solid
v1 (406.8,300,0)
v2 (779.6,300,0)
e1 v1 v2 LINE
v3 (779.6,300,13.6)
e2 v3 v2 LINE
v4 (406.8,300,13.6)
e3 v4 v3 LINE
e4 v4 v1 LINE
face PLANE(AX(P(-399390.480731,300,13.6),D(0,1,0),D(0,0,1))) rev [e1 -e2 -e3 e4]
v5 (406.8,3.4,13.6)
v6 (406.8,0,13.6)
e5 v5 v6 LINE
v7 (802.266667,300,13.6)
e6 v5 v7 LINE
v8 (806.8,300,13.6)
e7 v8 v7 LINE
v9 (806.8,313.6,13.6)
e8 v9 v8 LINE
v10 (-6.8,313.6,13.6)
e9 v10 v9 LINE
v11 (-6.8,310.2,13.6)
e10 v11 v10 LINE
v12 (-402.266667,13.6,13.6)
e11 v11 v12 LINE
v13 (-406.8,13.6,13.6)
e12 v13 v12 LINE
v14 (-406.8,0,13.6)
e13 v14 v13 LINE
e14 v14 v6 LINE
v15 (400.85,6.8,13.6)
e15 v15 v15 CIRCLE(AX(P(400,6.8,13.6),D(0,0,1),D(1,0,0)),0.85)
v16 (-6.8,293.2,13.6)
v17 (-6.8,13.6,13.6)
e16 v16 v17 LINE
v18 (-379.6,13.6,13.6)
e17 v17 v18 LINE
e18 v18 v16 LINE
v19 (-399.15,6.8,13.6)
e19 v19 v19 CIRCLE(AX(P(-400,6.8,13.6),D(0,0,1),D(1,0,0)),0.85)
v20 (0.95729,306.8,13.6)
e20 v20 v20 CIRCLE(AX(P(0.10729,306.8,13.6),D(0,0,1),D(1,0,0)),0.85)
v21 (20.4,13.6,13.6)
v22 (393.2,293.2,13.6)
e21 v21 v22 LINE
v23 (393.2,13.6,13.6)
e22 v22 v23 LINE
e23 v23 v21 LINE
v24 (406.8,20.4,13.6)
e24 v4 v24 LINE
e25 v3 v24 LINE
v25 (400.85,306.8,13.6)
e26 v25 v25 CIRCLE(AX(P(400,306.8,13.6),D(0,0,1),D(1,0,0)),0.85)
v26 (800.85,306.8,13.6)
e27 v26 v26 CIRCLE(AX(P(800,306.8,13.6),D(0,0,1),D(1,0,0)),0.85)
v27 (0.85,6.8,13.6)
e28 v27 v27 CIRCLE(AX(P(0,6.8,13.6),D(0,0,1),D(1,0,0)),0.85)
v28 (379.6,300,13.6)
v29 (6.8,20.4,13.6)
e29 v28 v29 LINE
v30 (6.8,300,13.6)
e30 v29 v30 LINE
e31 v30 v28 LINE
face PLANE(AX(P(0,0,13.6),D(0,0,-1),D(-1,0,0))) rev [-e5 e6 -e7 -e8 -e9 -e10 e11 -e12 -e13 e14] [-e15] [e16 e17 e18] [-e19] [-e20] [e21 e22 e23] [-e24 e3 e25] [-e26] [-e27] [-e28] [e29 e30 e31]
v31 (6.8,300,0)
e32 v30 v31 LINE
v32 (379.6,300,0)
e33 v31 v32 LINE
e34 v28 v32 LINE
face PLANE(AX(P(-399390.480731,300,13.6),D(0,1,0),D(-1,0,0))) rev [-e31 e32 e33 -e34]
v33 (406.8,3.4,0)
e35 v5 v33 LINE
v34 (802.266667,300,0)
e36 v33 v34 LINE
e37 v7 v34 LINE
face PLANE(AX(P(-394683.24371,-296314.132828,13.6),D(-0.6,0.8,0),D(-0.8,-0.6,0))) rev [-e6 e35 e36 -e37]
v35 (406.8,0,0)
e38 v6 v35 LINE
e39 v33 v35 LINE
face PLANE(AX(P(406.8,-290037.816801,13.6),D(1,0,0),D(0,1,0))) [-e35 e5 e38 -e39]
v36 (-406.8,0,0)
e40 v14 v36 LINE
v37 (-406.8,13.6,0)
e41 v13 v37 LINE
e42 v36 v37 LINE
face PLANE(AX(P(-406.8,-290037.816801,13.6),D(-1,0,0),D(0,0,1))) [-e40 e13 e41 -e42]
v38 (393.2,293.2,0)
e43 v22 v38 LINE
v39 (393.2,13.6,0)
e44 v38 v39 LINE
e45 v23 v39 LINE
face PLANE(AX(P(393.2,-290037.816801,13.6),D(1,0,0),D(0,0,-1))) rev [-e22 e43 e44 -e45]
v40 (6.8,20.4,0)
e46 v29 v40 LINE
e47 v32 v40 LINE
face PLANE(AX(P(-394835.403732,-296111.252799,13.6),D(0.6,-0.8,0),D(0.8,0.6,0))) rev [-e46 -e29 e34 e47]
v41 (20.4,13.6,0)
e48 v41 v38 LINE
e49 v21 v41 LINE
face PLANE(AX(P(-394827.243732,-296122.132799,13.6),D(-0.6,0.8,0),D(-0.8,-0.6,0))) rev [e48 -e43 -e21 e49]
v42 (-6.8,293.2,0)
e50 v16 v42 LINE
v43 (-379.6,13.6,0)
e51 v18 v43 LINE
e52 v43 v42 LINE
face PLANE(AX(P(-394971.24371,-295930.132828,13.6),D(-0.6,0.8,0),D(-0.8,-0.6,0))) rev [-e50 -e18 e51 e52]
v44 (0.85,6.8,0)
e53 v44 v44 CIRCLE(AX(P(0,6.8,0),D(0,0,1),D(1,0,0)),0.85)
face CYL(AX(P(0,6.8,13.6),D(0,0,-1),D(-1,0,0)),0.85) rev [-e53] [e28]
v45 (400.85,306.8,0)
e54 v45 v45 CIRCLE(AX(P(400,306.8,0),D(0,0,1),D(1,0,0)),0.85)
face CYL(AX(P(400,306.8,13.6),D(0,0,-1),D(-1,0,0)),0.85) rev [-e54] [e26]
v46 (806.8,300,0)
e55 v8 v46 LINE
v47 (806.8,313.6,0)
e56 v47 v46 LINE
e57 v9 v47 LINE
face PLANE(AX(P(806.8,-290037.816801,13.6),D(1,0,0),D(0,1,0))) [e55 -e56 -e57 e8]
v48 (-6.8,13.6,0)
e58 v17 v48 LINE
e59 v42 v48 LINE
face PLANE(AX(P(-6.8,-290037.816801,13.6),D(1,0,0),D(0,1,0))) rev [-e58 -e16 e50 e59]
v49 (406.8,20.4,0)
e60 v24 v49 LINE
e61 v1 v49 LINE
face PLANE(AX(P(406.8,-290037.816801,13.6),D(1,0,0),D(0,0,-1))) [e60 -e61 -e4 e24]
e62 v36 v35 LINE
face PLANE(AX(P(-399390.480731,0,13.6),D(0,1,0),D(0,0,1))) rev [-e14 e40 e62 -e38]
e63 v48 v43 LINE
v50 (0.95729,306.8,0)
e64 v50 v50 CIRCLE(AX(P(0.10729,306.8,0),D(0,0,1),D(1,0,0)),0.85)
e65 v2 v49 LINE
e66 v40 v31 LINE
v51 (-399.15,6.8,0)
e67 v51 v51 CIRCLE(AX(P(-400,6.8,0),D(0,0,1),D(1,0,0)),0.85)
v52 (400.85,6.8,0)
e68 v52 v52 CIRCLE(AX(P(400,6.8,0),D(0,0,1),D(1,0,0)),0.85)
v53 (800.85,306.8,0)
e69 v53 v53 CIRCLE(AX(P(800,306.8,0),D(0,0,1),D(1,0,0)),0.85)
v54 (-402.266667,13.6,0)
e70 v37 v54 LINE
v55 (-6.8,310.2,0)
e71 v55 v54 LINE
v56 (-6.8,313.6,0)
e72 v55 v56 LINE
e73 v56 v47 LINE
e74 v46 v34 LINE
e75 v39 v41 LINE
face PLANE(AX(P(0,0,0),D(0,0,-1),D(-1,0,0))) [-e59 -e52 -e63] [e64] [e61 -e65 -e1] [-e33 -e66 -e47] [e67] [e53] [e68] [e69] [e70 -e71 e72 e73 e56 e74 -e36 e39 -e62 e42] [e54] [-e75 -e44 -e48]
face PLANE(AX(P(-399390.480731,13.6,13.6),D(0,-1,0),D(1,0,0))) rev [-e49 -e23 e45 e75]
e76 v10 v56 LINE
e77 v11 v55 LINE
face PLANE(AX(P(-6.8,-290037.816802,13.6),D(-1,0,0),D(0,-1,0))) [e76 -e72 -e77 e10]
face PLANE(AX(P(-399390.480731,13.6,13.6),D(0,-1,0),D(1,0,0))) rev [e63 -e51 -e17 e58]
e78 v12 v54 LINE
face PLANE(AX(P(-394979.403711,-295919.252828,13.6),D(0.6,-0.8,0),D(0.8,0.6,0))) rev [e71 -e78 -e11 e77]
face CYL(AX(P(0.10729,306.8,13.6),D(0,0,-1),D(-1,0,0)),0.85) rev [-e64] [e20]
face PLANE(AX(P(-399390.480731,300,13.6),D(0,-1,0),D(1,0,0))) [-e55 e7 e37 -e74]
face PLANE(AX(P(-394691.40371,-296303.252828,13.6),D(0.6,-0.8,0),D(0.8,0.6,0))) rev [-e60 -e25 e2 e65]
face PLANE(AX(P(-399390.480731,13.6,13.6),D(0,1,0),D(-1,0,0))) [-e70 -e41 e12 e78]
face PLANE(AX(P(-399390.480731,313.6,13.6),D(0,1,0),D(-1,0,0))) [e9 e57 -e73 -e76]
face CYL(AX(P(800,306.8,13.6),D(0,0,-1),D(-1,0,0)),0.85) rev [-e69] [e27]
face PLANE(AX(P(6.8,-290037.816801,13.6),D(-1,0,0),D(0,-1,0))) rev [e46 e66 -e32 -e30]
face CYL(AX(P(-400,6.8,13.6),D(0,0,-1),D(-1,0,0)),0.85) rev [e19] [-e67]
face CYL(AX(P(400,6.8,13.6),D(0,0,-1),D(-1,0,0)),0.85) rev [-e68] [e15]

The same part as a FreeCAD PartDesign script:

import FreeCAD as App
import Part
import Sketcher


def add_polygon(sketch, points):
    """Adds a closed chain of lines whose ends are joined by coincident constraints."""
    first, n = sketch.GeometryCount, len(points)
    for a, b in zip(points, points[1:] + points[:1]):
        sketch.addGeometry(Part.LineSegment(App.Vector(*a, 0), App.Vector(*b, 0)), False)
    for i in range(n):
        sketch.addConstraint(Sketcher.Constraint("Coincident", first + i, 2, first + (i + 1) % n, 1))

doc = App.newDocument("Part")
body = doc.addObject("PartDesign::Body", "Body")

sketch1 = doc.addObject("Sketcher::SketchObject", "Sketch")
body.addObject(sketch1)
sketch1.AttachmentSupport = (doc.XY_Plane, [""])
sketch1.MapMode = "FlatFace"
add_polygon(sketch1, [(-406.8, 0), (406.8, 0), (406.8, 3.4), (802.266667, 300), (806.8, 300), (806.8, 313.6), (-6.8, 313.6), (-6.8, 310.2), (-306.362355, 85.528234), (-402.266667, 13.6), (-406.8, 13.6)])
sketch1.addGeometry(Part.Circle(App.Vector(400, 6.8, 0), App.Vector(0, 0, 1), 0.85), False)
add_polygon(sketch1, [(393.2, 13.6), (20.4, 13.6), (114.440362, 84.130271), (393.2, 293.2)])
sketch1.addGeometry(Part.Circle(App.Vector(0, 6.8, 0), App.Vector(0, 0, 1), 0.85), False)
sketch1.addGeometry(Part.Circle(App.Vector(-400, 6.8, 0), App.Vector(0, 0, 1), 0.85), False)
add_polygon(sketch1, [(-6.8, 13.6), (-379.6, 13.6), (-298.202355, 74.648234), (-6.8, 293.2)])
add_polygon(sketch1, [(406.8, 20.4), (406.8, 300), (779.6, 300)])
sketch1.addGeometry(Part.Circle(App.Vector(800, 306.8, 0), App.Vector(0, 0, 1), 0.85), False)
sketch1.addGeometry(Part.Circle(App.Vector(400, 306.8, 0), App.Vector(0, 0, 1), 0.85), False)
add_polygon(sketch1, [(6.8, 300), (379.6, 300), (106.280362, 95.010271), (6.8, 20.4)])
sketch1.addGeometry(Part.Circle(App.Vector(0.10729, 306.8, 0), App.Vector(0, 0, 1), 0.85), False)
sketch1.addConstraint(Sketcher.Constraint("Horizontal", 0))
sketch1.addConstraint(Sketcher.Constraint("Vertical", 1))
sketch1.addConstraint(Sketcher.Constraint("Horizontal", 3))
sketch1.addConstraint(Sketcher.Constraint("Vertical", 4))
sketch1.addConstraint(Sketcher.Constraint("Horizontal", 5))
sketch1.addConstraint(Sketcher.Constraint("Vertical", 6))
sketch1.addConstraint(Sketcher.Constraint("Horizontal", 9))
sketch1.addConstraint(Sketcher.Constraint("Vertical", 10))
sketch1.addConstraint(Sketcher.Constraint("Horizontal", 12))
sketch1.addConstraint(Sketcher.Constraint("Vertical", 15))
sketch1.addConstraint(Sketcher.Constraint("Horizontal", 18))
sketch1.addConstraint(Sketcher.Constraint("Vertical", 21))
sketch1.addConstraint(Sketcher.Constraint("Vertical", 22))
sketch1.addConstraint(Sketcher.Constraint("Horizontal", 23))
sketch1.addConstraint(Sketcher.Constraint("Horizontal", 27))
sketch1.addConstraint(Sketcher.Constraint("Vertical", 30))
sketch1.addConstraint(Sketcher.Constraint("Equal", 11, 16))
sketch1.addConstraint(Sketcher.Constraint("Equal", 16, 17))
sketch1.addConstraint(Sketcher.Constraint("Equal", 17, 25))
sketch1.addConstraint(Sketcher.Constraint("Equal", 25, 26))
sketch1.addConstraint(Sketcher.Constraint("Equal", 26, 31))
sketch1.addConstraint(Sketcher.Constraint("Symmetric", 0, 2, 10, 2, -1, 1))
sketch1.addConstraint(Sketcher.Constraint("Symmetric", 11, 3, 17, 3, -2))
sketch1.addConstraint(Sketcher.Constraint("PointOnObject", 16, 3, -2))
sketch1.addConstraint(Sketcher.Constraint("Parallel", 2, 7))
sketch1.addConstraint(Sketcher.Constraint("Parallel", 7, 8))
sketch1.addConstraint(Sketcher.Constraint("Parallel", 8, 13))
sketch1.addConstraint(Sketcher.Constraint("Parallel", 13, 14))
sketch1.addConstraint(Sketcher.Constraint("Parallel", 14, 19))
sketch1.addConstraint(Sketcher.Constraint("Parallel", 19, 20))
sketch1.addConstraint(Sketcher.Constraint("Parallel", 20, 24))
sketch1.addConstraint(Sketcher.Constraint("Parallel", 24, 28))
sketch1.addConstraint(Sketcher.Constraint("Parallel", 28, 29))
sketch1.addConstraint(Sketcher.Constraint("Horizontal", 11, 3, 16, 3))
sketch1.addConstraint(Sketcher.Constraint("Horizontal", 25, 3, 26, 3))
sketch1.addConstraint(Sketcher.Constraint("Horizontal", 26, 3, 31, 3))
sketch1.addConstraint(Sketcher.Constraint("Horizontal", 9, 2, 12, 2))
sketch1.addConstraint(Sketcher.Constraint("Horizontal", 15, 2, 18, 2))
sketch1.addConstraint(Sketcher.Constraint("Horizontal", 14, 2, 20, 2))
sketch1.addConstraint(Sketcher.Constraint("Horizontal", 3, 2, 22, 2))
sketch1.addConstraint(Sketcher.Constraint("Horizontal", 23, 2, 27, 2))
sketch1.addConstraint(Sketcher.Constraint("Horizontal", 24, 2, 29, 2))
sketch1.addConstraint(Sketcher.Constraint("Vertical", 11, 3, 26, 3))
sketch1.addConstraint(Sketcher.Constraint("Vertical", 6, 2, 20, 2))
sketch1.addConstraint(Sketcher.Constraint("Vertical", 1, 2, 22, 2))
sketch1.addConstraint(Sketcher.Constraint("Equal", 0, 5))
sketch1.addConstraint(Sketcher.Constraint("Equal", 3, 9))
sketch1.addConstraint(Sketcher.Constraint("Equal", 18, 23))
sketch1.addConstraint(Sketcher.Constraint("Equal", 1, 6))
sketch1.addConstraint(Sketcher.Constraint("Diameter", 11, 1.7))
sketch1.addConstraint(Sketcher.Constraint("Distance", 24, 466.0))
sketch1.addConstraint(Sketcher.Constraint("DistanceX", 0, 1, 0, 2, 813.6))
sketch1.addConstraint(Sketcher.Constraint("DistanceX", 12, 2, 12, 1, 372.8))
sketch1.addConstraint(Sketcher.Constraint("DistanceY", 1, 1, 1, 2, 3.4))
sketch1.addConstraint(Sketcher.Constraint("DistanceY", 4, 1, 4, 2, 13.6))
sketch1.addConstraint(Sketcher.Constraint("DistanceX", -1, 1, 11, 3, 400.0))
sketch1.addConstraint(Sketcher.Constraint("DistanceX", -1, 1, 25, 3, 800.0))
sketch1.addConstraint(Sketcher.Constraint("DistanceY", -1, 1, 2, 2, 300.0))
sketch1.addConstraint(Sketcher.Constraint("DistanceY", 11, 3, 25, 3, 300.0))
sketch1.addConstraint(Sketcher.Constraint("DistanceX", 1, 2, 3, 2, 400.0))
sketch1.addConstraint(Sketcher.Constraint("DistanceY", -1, 1, 11, 3, 6.8))
sketch1.addConstraint(Sketcher.Constraint("DistanceX", -1, 1, 12, 2, 20.4))
sketch1.addConstraint(Sketcher.Constraint("DistanceX", -1, 1, 27, 2, 379.6))
sketch1.addConstraint(Sketcher.Constraint("DistanceX", 7, 2, 19, 2, 8.16))
sketch1.addConstraint(Sketcher.Constraint("DistanceX", 28, 2, 13, 2, 8.16))
sketch1.addConstraint(Sketcher.Constraint("Distance", 8, 119.880389))
sketch1.addConstraint(Sketcher.Constraint("DistanceX", -1, 1, 31, 3, 0.10729))
sketch1.addConstraint(Sketcher.Constraint("DistanceX", -1, 1, 13, 2, 114.440362))
pad1 = doc.addObject("PartDesign::Pad", "Pad")
body.addObject(pad1)
pad1.Profile = sketch1
pad1.Length = 13.6

doc.recompute()
